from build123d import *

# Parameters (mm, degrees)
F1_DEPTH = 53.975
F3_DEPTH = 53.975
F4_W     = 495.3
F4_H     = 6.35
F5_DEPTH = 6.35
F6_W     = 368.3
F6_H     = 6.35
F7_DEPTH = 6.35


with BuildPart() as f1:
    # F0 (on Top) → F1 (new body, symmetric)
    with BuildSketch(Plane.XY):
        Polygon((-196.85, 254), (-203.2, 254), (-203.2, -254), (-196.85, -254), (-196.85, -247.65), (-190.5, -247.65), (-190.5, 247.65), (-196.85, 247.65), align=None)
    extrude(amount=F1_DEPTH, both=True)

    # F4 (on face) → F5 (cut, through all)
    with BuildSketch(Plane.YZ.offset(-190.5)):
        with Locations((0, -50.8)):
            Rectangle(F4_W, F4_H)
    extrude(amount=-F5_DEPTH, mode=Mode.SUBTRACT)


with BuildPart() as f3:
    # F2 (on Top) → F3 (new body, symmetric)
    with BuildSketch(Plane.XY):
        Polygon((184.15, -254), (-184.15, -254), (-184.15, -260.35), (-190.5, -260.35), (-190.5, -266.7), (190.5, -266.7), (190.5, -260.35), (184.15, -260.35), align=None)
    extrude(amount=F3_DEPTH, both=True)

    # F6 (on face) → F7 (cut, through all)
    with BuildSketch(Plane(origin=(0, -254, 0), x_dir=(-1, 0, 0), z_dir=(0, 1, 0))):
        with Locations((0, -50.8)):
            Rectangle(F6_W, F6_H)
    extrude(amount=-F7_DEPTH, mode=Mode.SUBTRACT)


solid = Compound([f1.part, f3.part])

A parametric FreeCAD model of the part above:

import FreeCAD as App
import Part
import Sketcher
Q = App.Units.Quantity


def add_polygon(sketch, points):
    """Adds a closed chain of lines whose ends are joined by coincident constraints."""
    first, n = sketch.GeometryCount, len(points)
    for a, b in zip(points, points[1:] + points[:1]):
        sketch.addGeometry(Part.LineSegment(App.Vector(*a, 0), App.Vector(*b, 0)), False)
    for i in range(n):
        sketch.addConstraint(Sketcher.Constraint("Coincident", first + i, 2, first + (i + 1) % n, 1))

doc = App.newDocument("Part")
body = doc.addObject("PartDesign::Body", "Body")

sketch1 = body.newObject("Sketcher::SketchObject", "Sketch")
sketch1.AttachmentSupport = (doc.getObject("XY_Plane"), [""])
sketch1.MapMode = "FlatFace"
add_polygon(sketch1, [(-197, 254), (-203, 254), (-203, -254), (-197, -254), (-197, -248), (-190, -248), (-190, 248), (-197, 248)])
sketch1.addConstraint(Sketcher.Constraint("Horizontal", 0))
sketch1.addConstraint(Sketcher.Constraint("Vertical", 1))
sketch1.addConstraint(Sketcher.Constraint("Horizontal", 2))
sketch1.addConstraint(Sketcher.Constraint("Vertical", 3))
sketch1.addConstraint(Sketcher.Constraint("Horizontal", 4))
sketch1.addConstraint(Sketcher.Constraint("Vertical", 5))
sketch1.addConstraint(Sketcher.Constraint("Horizontal", 6))
sketch1.addConstraint(Sketcher.Constraint("Vertical", 7))
sketch1.addConstraint(Sketcher.Constraint("Symmetric", 3, 2, 6, 2, -1))
sketch1.addConstraint(Sketcher.Constraint("Equal", 2, 4))
sketch1.addConstraint(Sketcher.Constraint("Equal", 6, 3))
sketch1.addConstraint(Sketcher.Constraint("Equal", 3, 7))
sketch1.addConstraint(Sketcher.Constraint("DistanceY", 1, 2, 1, 1, Q("20 in")))
sketch1.addConstraint(Sketcher.Constraint("DistanceY", 5, 1, 5, 2, Q("19.5 in")))
sketch1.addConstraint(Sketcher.Constraint("DistanceX", 0, 2, -1, 1, Q("8 in")))
pad1 = body.newObject("PartDesign::Pad", "Pad")
pad1.Profile = sketch1
pad1.Length = Q("4.25 in")
pad1.Midplane = True

sketch2 = body.newObject("Sketcher::SketchObject", "Sketch001")
sketch2.AttachmentSupport = (doc.getObject("YZ_Plane"), [""])
sketch2.MapMode = "FlatFace"
sketch2.AttachmentOffset = App.Placement(App.Vector(0, 0, -7.5 * 25.4), App.Rotation())
add_polygon(sketch2, [(-248, -48), (-248, -54), (248, -54), (248, -48)])
sketch2.addConstraint(Sketcher.Constraint("Vertical", 0))
sketch2.addConstraint(Sketcher.Constraint("Horizontal", 1))
sketch2.addConstraint(Sketcher.Constraint("Vertical", 2))
sketch2.addConstraint(Sketcher.Constraint("Horizontal", 3))
sketch2.addConstraint(Sketcher.Constraint("DistanceX", 1, 1, 1, 2, Q("19.5 in")))
sketch2.addConstraint(Sketcher.Constraint("DistanceY", 0, 2, 0, 1, Q("0.25 in")))
sketch2.addConstraint(Sketcher.Constraint("DistanceX", 0, 2, -1, 1, Q("9.75 in")))
sketch2.addConstraint(Sketcher.Constraint("DistanceY", 0, 2, -1, 1, Q("2.125 in")))
pocket1 = body.newObject("PartDesign::Pocket", "Pocket")
pocket1.Profile = sketch2
pocket1.Length = Q("0.25 in")
body2 = doc.addObject("PartDesign::Body", "Body001")

sketch3 = body2.newObject("Sketcher::SketchObject", "Sketch002")
sketch3.AttachmentSupport = (doc.getObject("XY_Plane001"), [""])
sketch3.MapMode = "FlatFace"
add_polygon(sketch3, [(184, -254), (-184, -254), (-184, -260), (-190, -260), (-190, -267), (190, -267), (190, -260), (184, -260)])
sketch3.addConstraint(Sketcher.Constraint("Horizontal", 0))
sketch3.addConstraint(Sketcher.Constraint("Vertical", 1))
sketch3.addConstraint(Sketcher.Constraint("Horizontal", 2))
sketch3.addConstraint(Sketcher.Constraint("Vertical", 3))
sketch3.addConstraint(Sketcher.Constraint("Horizontal", 4))
sketch3.addConstraint(Sketcher.Constraint("Vertical", 5))
sketch3.addConstraint(Sketcher.Constraint("Horizontal", 6))
sketch3.addConstraint(Sketcher.Constraint("Vertical", 7))
sketch3.addConstraint(Sketcher.Constraint("Symmetric", 2, 2, 5, 2, -2))
sketch3.addConstraint(Sketcher.Constraint("Equal", 2, 6))
sketch3.addConstraint(Sketcher.Constraint("Equal", 6, 1))
sketch3.addConstraint(Sketcher.Constraint("Equal", 1, 3))
sketch3.addConstraint(Sketcher.Constraint("DistanceX", 4, 1, 4, 2, Q("15 in")))
sketch3.addConstraint(Sketcher.Constraint("DistanceX", 0, 2, 0, 1, Q("14.5 in")))
sketch3.addConstraint(Sketcher.Constraint("DistanceY", 0, 2, -1, 1, Q("10 in")))
pad2 = body2.newObject("PartDesign::Pad", "Pad001")
pad2.Profile = sketch3
pad2.Length = Q("4.25 in")
pad2.Midplane = True

sketch4 = body2.newObject("Sketcher::SketchObject", "Sketch003")
sketch4.AttachmentSupport = (doc.getObject("XZ_Plane001"), [""])
sketch4.MapMode = "FlatFace"
sketch4.AttachmentOffset = App.Placement(App.Vector(0, 0, 10 * 25.4), App.Rotation())
add_polygon(sketch4, [(184, -48), (184, -54), (-184, -54), (-184, -48)])
sketch4.addConstraint(Sketcher.Constraint("Vertical", 0))
sketch4.addConstraint(Sketcher.Constraint("Horizontal", 1))
sketch4.addConstraint(Sketcher.Constraint("Vertical", 2))
sketch4.addConstraint(Sketcher.Constraint("Horizontal", 3))
sketch4.addConstraint(Sketcher.Constraint("DistanceX", 1, 2, 1, 1, Q("14.5 in")))
sketch4.addConstraint(Sketcher.Constraint("DistanceY", 0, 2, 0, 1, Q("0.25 in")))
sketch4.addConstraint(Sketcher.Constraint("DistanceX", -1, 1, 0, 2, Q("7.25 in")))
sketch4.addConstraint(Sketcher.Constraint("DistanceY", 0, 2, -1, 1, Q("2.125 in")))
pocket2 = body2.newObject("PartDesign::Pocket", "Pocket001")
pocket2.Profile = sketch4
pocket2.Length = Q("0.25 in")
pocket2.Reversed = True

doc.recompute()
